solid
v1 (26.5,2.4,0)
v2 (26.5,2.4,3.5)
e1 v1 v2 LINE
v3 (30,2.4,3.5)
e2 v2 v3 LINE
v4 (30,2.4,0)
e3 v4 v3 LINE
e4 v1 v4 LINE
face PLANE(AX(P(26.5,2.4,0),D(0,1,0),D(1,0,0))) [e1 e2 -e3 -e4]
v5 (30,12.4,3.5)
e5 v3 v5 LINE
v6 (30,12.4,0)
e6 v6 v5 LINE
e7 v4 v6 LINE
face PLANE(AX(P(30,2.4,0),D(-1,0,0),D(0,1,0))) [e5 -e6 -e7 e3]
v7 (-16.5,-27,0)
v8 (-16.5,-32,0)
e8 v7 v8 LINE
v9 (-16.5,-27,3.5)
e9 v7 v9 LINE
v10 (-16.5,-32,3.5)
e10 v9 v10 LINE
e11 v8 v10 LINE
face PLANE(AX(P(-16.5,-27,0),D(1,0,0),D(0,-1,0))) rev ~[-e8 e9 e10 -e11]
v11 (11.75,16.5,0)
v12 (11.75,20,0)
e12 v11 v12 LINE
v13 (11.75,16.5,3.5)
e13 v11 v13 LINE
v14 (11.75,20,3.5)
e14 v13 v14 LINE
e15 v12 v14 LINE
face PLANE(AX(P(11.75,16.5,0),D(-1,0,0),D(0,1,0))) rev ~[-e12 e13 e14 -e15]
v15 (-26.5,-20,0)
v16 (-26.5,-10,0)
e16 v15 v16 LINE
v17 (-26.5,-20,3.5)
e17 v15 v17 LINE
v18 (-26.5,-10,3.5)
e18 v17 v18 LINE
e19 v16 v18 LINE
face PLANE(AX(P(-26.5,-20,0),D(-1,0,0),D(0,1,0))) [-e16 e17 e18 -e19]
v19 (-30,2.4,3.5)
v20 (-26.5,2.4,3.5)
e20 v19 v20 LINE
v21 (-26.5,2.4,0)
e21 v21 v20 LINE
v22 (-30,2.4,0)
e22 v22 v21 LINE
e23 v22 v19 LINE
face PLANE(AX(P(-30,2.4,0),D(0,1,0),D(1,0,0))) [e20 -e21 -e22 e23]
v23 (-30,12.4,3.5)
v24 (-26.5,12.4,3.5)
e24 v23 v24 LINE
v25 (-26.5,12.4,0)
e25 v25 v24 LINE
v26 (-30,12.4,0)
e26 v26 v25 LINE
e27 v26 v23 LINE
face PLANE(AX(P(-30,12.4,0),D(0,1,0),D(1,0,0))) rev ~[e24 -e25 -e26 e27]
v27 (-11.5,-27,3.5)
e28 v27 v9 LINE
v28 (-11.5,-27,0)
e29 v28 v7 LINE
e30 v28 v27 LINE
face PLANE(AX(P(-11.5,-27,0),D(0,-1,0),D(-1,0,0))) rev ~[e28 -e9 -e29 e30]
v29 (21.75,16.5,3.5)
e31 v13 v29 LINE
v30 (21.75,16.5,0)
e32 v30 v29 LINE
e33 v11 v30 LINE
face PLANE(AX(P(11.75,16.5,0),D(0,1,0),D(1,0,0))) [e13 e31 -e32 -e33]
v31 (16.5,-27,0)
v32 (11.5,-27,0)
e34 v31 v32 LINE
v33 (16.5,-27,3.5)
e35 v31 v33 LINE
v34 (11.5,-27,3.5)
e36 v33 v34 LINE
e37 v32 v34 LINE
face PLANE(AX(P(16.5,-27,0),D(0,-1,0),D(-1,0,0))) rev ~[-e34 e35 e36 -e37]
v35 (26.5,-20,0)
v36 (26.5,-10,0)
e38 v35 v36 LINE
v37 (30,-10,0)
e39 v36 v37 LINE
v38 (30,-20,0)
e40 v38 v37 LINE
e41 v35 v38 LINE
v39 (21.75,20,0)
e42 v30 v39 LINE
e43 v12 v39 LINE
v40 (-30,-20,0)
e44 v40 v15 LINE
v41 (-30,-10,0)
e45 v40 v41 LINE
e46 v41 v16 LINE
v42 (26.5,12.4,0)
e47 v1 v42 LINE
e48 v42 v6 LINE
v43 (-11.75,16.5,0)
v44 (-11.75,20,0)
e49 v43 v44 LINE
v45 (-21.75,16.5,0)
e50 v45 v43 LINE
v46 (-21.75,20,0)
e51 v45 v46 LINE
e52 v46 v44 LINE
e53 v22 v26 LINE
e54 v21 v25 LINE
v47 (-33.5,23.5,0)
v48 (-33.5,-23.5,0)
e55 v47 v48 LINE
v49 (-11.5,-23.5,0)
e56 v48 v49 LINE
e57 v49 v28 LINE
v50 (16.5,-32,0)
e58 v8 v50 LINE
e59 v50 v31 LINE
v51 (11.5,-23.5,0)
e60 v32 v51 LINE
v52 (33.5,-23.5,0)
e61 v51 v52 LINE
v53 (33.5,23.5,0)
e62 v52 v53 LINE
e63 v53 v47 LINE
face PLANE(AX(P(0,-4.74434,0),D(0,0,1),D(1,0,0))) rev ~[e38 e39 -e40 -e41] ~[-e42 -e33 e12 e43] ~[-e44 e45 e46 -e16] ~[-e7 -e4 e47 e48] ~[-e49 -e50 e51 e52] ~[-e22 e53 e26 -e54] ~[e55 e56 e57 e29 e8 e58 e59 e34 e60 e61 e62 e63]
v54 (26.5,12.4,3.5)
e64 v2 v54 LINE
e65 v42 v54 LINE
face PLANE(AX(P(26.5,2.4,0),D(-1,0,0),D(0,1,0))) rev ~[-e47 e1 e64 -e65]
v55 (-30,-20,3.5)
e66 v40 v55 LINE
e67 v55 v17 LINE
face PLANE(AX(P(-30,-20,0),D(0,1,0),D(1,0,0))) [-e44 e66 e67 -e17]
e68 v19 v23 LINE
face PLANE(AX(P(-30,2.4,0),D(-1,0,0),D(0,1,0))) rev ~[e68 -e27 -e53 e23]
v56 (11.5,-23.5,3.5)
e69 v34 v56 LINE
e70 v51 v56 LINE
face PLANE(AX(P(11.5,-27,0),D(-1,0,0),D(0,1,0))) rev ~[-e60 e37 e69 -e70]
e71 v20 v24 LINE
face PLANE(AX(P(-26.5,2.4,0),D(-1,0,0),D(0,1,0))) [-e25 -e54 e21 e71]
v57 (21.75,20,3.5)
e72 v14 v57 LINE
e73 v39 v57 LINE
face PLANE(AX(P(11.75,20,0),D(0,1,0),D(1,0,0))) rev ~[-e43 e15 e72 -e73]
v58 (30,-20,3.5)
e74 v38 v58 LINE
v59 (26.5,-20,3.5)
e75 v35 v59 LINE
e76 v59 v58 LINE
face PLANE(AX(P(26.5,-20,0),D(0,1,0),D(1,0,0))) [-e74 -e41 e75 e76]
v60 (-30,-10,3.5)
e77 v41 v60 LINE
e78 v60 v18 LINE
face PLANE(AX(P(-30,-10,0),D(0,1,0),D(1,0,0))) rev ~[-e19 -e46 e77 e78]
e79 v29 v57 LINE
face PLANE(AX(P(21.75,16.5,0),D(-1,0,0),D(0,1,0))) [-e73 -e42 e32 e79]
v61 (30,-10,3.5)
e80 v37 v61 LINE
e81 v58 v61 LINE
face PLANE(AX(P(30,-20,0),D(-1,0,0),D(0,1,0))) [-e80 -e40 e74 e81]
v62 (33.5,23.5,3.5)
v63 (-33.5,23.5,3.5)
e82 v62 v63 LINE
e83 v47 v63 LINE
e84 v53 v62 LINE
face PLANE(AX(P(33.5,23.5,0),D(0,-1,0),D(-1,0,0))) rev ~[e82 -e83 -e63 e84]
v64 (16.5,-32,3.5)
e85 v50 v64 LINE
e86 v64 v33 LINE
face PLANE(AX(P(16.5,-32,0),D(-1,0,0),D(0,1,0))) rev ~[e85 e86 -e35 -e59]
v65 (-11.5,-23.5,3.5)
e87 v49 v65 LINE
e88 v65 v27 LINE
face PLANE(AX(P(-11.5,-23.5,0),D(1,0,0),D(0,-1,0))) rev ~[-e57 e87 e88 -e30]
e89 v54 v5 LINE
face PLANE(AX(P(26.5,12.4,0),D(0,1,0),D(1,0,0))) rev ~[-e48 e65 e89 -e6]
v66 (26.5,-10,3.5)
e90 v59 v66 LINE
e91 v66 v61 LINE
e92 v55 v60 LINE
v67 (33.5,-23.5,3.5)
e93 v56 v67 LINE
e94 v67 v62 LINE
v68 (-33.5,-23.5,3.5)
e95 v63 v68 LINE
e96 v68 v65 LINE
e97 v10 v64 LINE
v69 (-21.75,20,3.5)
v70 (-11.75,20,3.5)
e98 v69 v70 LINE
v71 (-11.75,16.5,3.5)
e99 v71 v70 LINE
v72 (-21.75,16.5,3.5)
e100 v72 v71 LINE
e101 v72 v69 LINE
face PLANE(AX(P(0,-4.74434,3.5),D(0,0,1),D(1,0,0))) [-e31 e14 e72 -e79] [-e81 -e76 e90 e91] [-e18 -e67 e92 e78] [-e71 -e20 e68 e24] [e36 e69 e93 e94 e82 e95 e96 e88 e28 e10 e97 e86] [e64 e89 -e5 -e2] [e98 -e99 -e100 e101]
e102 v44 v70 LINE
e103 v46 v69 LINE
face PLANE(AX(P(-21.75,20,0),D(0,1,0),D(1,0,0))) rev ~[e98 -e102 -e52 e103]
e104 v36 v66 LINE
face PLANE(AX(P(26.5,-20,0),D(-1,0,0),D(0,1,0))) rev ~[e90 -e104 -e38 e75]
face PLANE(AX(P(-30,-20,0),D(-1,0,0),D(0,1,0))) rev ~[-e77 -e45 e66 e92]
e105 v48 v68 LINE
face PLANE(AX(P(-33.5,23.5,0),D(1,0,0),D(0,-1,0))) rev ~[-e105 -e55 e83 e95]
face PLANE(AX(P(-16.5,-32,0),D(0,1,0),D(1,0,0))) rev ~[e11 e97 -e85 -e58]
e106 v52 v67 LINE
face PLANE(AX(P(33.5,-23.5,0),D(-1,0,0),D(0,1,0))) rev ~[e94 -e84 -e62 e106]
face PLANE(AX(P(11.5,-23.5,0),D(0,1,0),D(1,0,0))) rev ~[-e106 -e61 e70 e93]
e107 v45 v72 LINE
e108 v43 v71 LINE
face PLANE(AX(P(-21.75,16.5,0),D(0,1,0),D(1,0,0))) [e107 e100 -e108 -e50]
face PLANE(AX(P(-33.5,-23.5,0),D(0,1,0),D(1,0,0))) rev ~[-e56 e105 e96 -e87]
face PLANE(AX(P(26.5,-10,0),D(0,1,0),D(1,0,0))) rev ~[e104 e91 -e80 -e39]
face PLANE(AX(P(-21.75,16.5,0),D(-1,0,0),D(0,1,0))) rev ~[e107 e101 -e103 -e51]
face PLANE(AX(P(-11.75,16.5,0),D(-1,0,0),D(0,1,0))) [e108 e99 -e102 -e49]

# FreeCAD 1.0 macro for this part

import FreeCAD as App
import Part
import Sketcher

V = App.Vector

doc = App.newDocument("Part")
body = doc.addObject("PartDesign::Body", "Body")

# Sketch on XY plane
sketch1 = body.newObject("Sketcher::SketchObject", "Sketch")
sketch1.AttachmentSupport = (doc.getObject("XY_Plane"), [""])
sketch1.MapMode = "FlatFace"
sketch1.addGeometry([
    Part.LineSegment(V(-33.5, 23.5, 0), V(-33.5, -23.5, 0)),  # 0
    Part.LineSegment(V(-33.5, -23.5, 0), V(-11.5, -23.5, 0)),  # 1
    Part.LineSegment(V(-11.5, -23.5, 0), V(-11.5, -27, 0)),  # 2
    Part.LineSegment(V(-11.5, -27, 0), V(-16.5, -27, 0)),  # 3
    Part.LineSegment(V(-16.5, -27, 0), V(-16.5, -32, 0)),  # 4
    Part.LineSegment(V(-16.5, -32, 0), V(16.5, -32, 0)),  # 5
    Part.LineSegment(V(16.5, -32, 0), V(16.5, -27, 0)),  # 6
    Part.LineSegment(V(16.5, -27, 0), V(11.5, -27, 0)),  # 7
    Part.LineSegment(V(11.5, -27, 0), V(11.5, -23.5, 0)),  # 8
    Part.LineSegment(V(11.5, -23.5, 0), V(33.5, -23.5, 0)),  # 9
    Part.LineSegment(V(33.5, -23.5, 0), V(33.5, 23.5, 0)),  # 10
    Part.LineSegment(V(33.5, 23.5, 0), V(-33.5, 23.5, 0)),  # 11
    Part.LineSegment(V(-26.5, -20, 0), V(-30, -20, 0)),  # 12
    Part.LineSegment(V(-30, -20, 0), V(-30, -10, 0)),  # 13
    Part.LineSegment(V(-30, -10, 0), V(-26.5, -10, 0)),  # 14
    Part.LineSegment(V(-26.5, -10, 0), V(-26.5, -20, 0)),  # 15
    Part.LineSegment(V(30, -20, 0), V(26.5, -20, 0)),  # 16
    Part.LineSegment(V(26.5, -20, 0), V(26.5, -10, 0)),  # 17
    Part.LineSegment(V(26.5, -10, 0), V(30, -10, 0)),  # 18
    Part.LineSegment(V(30, -10, 0), V(30, -20, 0)),  # 19
    Part.LineSegment(V(-26.5, 2.4, 0), V(-30, 2.4, 0)),  # 20
    Part.LineSegment(V(-30, 2.4, 0), V(-30, 12.4, 0)),  # 21
    Part.LineSegment(V(-30, 12.4, 0), V(-26.5, 12.4, 0)),  # 22
    Part.LineSegment(V(-26.5, 12.4, 0), V(-26.5, 2.4, 0)),  # 23
    Part.LineSegment(V(-11.8, 16.5, 0), V(-21.8, 16.5, 0)),  # 24
    Part.LineSegment(V(-21.8, 16.5, 0), V(-21.8, 20, 0)),  # 25
    Part.LineSegment(V(-21.8, 20, 0), V(-11.8, 20, 0)),  # 26
    Part.LineSegment(V(-11.8, 20, 0), V(-11.8, 16.5, 0)),  # 27
    Part.LineSegment(V(30, 2.4, 0), V(26.5, 2.4, 0)),  # 28
    Part.LineSegment(V(26.5, 2.4, 0), V(26.5, 12.4, 0)),  # 29
    Part.LineSegment(V(26.5, 12.4, 0), V(30, 12.4, 0)),  # 30
    Part.LineSegment(V(30, 12.4, 0), V(30, 2.4, 0)),  # 31
    Part.LineSegment(V(21.8, 16.5, 0), V(11.8, 16.5, 0)),  # 32
    Part.LineSegment(V(11.8, 16.5, 0), V(11.8, 20, 0)),  # 33
    Part.LineSegment(V(11.8, 20, 0), V(21.8, 20, 0)),  # 34
    Part.LineSegment(V(21.8, 20, 0), V(21.8, 16.5, 0)),  # 35
], False)
sketch1.addConstraint([
    Sketcher.Constraint("Coincident", 0, 2, 1, 1),
    Sketcher.Constraint("Coincident", 1, 2, 2, 1),
    Sketcher.Constraint("Coincident", 2, 2, 3, 1),
    Sketcher.Constraint("Coincident", 3, 2, 4, 1),
    Sketcher.Constraint("Coincident", 4, 2, 5, 1),
    Sketcher.Constraint("Coincident", 5, 2, 6, 1),
    Sketcher.Constraint("Coincident", 6, 2, 7, 1),
    Sketcher.Constraint("Coincident", 7, 2, 8, 1),
    Sketcher.Constraint("Coincident", 8, 2, 9, 1),
    Sketcher.Constraint("Coincident", 9, 2, 10, 1),
    Sketcher.Constraint("Coincident", 10, 2, 11, 1),
    Sketcher.Constraint("Coincident", 11, 2, 0, 1),
    Sketcher.Constraint("Coincident", 12, 2, 13, 1),
    Sketcher.Constraint("Coincident", 13, 2, 14, 1),
    Sketcher.Constraint("Coincident", 14, 2, 15, 1),
    Sketcher.Constraint("Coincident", 15, 2, 12, 1),
    Sketcher.Constraint("Coincident", 16, 2, 17, 1),
    Sketcher.Constraint("Coincident", 17, 2, 18, 1),
    Sketcher.Constraint("Coincident", 18, 2, 19, 1),
    Sketcher.Constraint("Coincident", 19, 2, 16, 1),
    Sketcher.Constraint("Coincident", 20, 2, 21, 1),
    Sketcher.Constraint("Coincident", 21, 2, 22, 1),
    Sketcher.Constraint("Coincident", 22, 2, 23, 1),
    Sketcher.Constraint("Coincident", 23, 2, 20, 1),
    Sketcher.Constraint("Coincident", 24, 2, 25, 1),
    Sketcher.Constraint("Coincident", 25, 2, 26, 1),
    Sketcher.Constraint("Coincident", 26, 2, 27, 1),
    Sketcher.Constraint("Coincident", 27, 2, 24, 1),
    Sketcher.Constraint("Coincident", 28, 2, 29, 1),
    Sketcher.Constraint("Coincident", 29, 2, 30, 1),
    Sketcher.Constraint("Coincident", 30, 2, 31, 1),
    Sketcher.Constraint("Coincident", 31, 2, 28, 1),
    Sketcher.Constraint("Coincident", 32, 2, 33, 1),
    Sketcher.Constraint("Coincident", 33, 2, 34, 1),
    Sketcher.Constraint("Coincident", 34, 2, 35, 1),
    Sketcher.Constraint("Coincident", 35, 2, 32, 1),
    Sketcher.Constraint("Vertical", 0),
    Sketcher.Constraint("Horizontal", 1),
    Sketcher.Constraint("Vertical", 2),
    Sketcher.Constraint("Horizontal", 3),
    Sketcher.Constraint("Vertical", 4),
    Sketcher.Constraint("Horizontal", 5),
    Sketcher.Constraint("Vertical", 6),
    Sketcher.Constraint("Horizontal", 7),
    Sketcher.Constraint("Vertical", 8),
    Sketcher.Constraint("Horizontal", 9),
    Sketcher.Constraint("Vertical", 10),
    Sketcher.Constraint("Horizontal", 11),
    Sketcher.Constraint("Horizontal", 12),
    Sketcher.Constraint("Vertical", 13),
    Sketcher.Constraint("Horizontal", 14),
    Sketcher.Constraint("Vertical", 15),
    Sketcher.Constraint("Horizontal", 16),
    Sketcher.Constraint("Vertical", 17),
    Sketcher.Constraint("Horizontal", 18),
    Sketcher.Constraint("Vertical", 19),
    Sketcher.Constraint("Horizontal", 20),
    Sketcher.Constraint("Vertical", 21),
    Sketcher.Constraint("Horizontal", 22),
    Sketcher.Constraint("Vertical", 23),
    Sketcher.Constraint("Horizontal", 24),
    Sketcher.Constraint("Vertical", 25),
    Sketcher.Constraint("Horizontal", 26),
    Sketcher.Constraint("Vertical", 27),
    Sketcher.Constraint("Horizontal", 28),
    Sketcher.Constraint("Vertical", 29),
    Sketcher.Constraint("Horizontal", 30),
    Sketcher.Constraint("Vertical", 31),
    Sketcher.Constraint("Horizontal", 32),
    Sketcher.Constraint("Vertical", 33),
    Sketcher.Constraint("Horizontal", 34),
    Sketcher.Constraint("Vertical", 35),
    Sketcher.Constraint("Symmetric", 0, 2, 10, 2, -1, 1),
    Sketcher.Constraint("Symmetric", 3, 2, 6, 2, -2),
    Sketcher.Constraint("Symmetric", 1, 2, 8, 2, -2),
    Sketcher.Constraint("Symmetric", 15, 2, 16, 2, -2),
    Sketcher.Constraint("Symmetric", 13, 2, 18, 2, -2),
    Sketcher.Constraint("Symmetric", 23, 2, 28, 2, -2),
    Sketcher.Constraint("Symmetric", 21, 2, 30, 2, -2),
    Sketcher.Constraint("Symmetric", 27, 2, 32, 2, -2),
    Sketcher.Constraint("Symmetric", 25, 2, 34, 2, -2),
    Sketcher.Constraint("Vertical", 13, 2, 20, 2),
    Sketcher.Constraint("Vertical", 15, 2, 22, 2),
    Sketcher.Constraint("Equal", 30, 2),
    Sketcher.Constraint("Equal", 7, 4),
    Sketcher.Constraint("Equal", 34, 13),
    Sketcher.Constraint("Equal", 19, 21),
    Sketcher.Constraint("Equal", 8, 25),
    Sketcher.Constraint("DistanceX", 1, 1, 1, 2, 22.0),
    Sketcher.Constraint("DistanceX", 3, 2, 3, 1, 5.0),
    Sketcher.Constraint("DistanceX", 5, 1, 5, 2, 33.0),
    Sketcher.Constraint("DistanceX", 24, 2, 24, 1, 10.0),
    Sketcher.Constraint("DistanceY", 0, 2, 0, 1, 47.0),
    Sketcher.Constraint("DistanceX", 12, 2, 12, 1, 3.5),
    Sketcher.Constraint("DistanceX", 12, 2, -1, 1, 30.0),
    Sketcher.Constraint("DistanceY", 12, 2, -1, 1, 20.0),
    Sketcher.Constraint("DistanceY", -1, 1, 25, 2, 20.0),
    Sketcher.Constraint("DistanceY", -1, 1, 20, 2, 2.4),
    Sketcher.Constraint("DistanceX", 24, 2, -1, 1, 21.75),
])
pad1 = body.newObject("PartDesign::Pad", "Pad")
pad1.Profile = sketch1
pad1.Length = 3.5

doc.recompute()
